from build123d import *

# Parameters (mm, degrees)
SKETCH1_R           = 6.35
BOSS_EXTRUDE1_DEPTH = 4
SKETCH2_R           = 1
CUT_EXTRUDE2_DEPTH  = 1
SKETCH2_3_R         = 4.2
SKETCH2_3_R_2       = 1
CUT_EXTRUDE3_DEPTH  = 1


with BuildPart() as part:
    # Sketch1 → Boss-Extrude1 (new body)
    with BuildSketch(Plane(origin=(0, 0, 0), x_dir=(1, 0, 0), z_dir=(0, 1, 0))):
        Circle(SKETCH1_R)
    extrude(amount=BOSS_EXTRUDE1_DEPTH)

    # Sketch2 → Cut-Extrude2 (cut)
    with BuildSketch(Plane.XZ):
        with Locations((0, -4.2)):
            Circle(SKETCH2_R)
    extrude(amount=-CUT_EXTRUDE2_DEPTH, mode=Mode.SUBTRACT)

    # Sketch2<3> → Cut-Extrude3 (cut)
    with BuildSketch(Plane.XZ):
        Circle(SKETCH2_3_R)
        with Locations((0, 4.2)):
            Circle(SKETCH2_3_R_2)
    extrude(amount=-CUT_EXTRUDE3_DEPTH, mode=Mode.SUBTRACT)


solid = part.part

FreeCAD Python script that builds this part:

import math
import FreeCAD as App
import Part
import Sketcher
from FreeCAD import Vector

doc = App.newDocument("Part")
body = doc.addObject("PartDesign::Body", "Body")

sketch1 = doc.addObject("Sketcher::SketchObject", "Sketch")
body.addObject(sketch1)
sketch1.AttachmentSupport = (doc.XZ_Plane, [""])
sketch1.MapMode = "FlatFace"
sketch1.addGeometry(Part.Circle(Vector(0, 0, 0), Vector(0, 0, 1), 6), False)
sketch1.addConstraint([
    Sketcher.Constraint("Coincident", 0, 3, -1, 1),
    Sketcher.Constraint("Diameter", 0, 12.7),
])
pad1 = doc.addObject("PartDesign::Pad", "Pad")
body.addObject(pad1)
pad1.Profile = sketch1
pad1.Length = 4
pad1.Reversed = True

sketch2 = doc.addObject("Sketcher::SketchObject", "Sketch001")
body.addObject(sketch2)
sketch2.AttachmentSupport = (doc.XZ_Plane, [""])
sketch2.MapMode = "FlatFace"
sketch2.addGeometry(Part.Circle(Vector(0, -4.2, 0), Vector(0, 0, 1), 1), False)
sketch2.addConstraint([
    Sketcher.Constraint("PointOnObject", 0, 3, -2),
    Sketcher.Constraint("Diameter", 0, 2.0),
    Sketcher.Constraint("DistanceY", 0, 3, -1, 1, 4.2),
])
pocket1 = doc.addObject("PartDesign::Pocket", "Pocket")
body.addObject(pocket1)
pocket1.Profile = sketch2
pocket1.Length = 1

sketch3 = doc.addObject("Sketcher::SketchObject", "Sketch002")
body.addObject(sketch3)
sketch3.AttachmentSupport = (doc.XZ_Plane, [""])
sketch3.MapMode = "FlatFace"
sketch3.addGeometry([
    Part.ArcOfCircle(Part.Circle(Vector(0, 0, 0), Vector(0, 0, 1), 4.2), math.radians(104), math.radians(436)),
    Part.ArcOfCircle(Part.Circle(Vector(0, 4.2, 0), Vector(0, 0, 1), 1), math.radians(-7), math.radians(187)),
], False)
sketch3.addConstraint([
    Sketcher.Constraint("Coincident", 0, 1, 1, 2),
    Sketcher.Constraint("Coincident", 1, 1, 0, 2),
    Sketcher.Constraint("Coincident", 0, 3, -1, 1),
    Sketcher.Constraint("PointOnObject", 1, 3, -2),
    Sketcher.Constraint("Radius", 1, 1.0),
    Sketcher.Constraint("Radius", 0, 4.2),
    Sketcher.Constraint("DistanceY", -1, 1, 1, 3, 4.2),
])
pocket2 = doc.addObject("PartDesign::Pocket", "Pocket001")
body.addObject(pocket2)
pocket2.Profile = sketch3
pocket2.Length = 1

doc.recompute()
